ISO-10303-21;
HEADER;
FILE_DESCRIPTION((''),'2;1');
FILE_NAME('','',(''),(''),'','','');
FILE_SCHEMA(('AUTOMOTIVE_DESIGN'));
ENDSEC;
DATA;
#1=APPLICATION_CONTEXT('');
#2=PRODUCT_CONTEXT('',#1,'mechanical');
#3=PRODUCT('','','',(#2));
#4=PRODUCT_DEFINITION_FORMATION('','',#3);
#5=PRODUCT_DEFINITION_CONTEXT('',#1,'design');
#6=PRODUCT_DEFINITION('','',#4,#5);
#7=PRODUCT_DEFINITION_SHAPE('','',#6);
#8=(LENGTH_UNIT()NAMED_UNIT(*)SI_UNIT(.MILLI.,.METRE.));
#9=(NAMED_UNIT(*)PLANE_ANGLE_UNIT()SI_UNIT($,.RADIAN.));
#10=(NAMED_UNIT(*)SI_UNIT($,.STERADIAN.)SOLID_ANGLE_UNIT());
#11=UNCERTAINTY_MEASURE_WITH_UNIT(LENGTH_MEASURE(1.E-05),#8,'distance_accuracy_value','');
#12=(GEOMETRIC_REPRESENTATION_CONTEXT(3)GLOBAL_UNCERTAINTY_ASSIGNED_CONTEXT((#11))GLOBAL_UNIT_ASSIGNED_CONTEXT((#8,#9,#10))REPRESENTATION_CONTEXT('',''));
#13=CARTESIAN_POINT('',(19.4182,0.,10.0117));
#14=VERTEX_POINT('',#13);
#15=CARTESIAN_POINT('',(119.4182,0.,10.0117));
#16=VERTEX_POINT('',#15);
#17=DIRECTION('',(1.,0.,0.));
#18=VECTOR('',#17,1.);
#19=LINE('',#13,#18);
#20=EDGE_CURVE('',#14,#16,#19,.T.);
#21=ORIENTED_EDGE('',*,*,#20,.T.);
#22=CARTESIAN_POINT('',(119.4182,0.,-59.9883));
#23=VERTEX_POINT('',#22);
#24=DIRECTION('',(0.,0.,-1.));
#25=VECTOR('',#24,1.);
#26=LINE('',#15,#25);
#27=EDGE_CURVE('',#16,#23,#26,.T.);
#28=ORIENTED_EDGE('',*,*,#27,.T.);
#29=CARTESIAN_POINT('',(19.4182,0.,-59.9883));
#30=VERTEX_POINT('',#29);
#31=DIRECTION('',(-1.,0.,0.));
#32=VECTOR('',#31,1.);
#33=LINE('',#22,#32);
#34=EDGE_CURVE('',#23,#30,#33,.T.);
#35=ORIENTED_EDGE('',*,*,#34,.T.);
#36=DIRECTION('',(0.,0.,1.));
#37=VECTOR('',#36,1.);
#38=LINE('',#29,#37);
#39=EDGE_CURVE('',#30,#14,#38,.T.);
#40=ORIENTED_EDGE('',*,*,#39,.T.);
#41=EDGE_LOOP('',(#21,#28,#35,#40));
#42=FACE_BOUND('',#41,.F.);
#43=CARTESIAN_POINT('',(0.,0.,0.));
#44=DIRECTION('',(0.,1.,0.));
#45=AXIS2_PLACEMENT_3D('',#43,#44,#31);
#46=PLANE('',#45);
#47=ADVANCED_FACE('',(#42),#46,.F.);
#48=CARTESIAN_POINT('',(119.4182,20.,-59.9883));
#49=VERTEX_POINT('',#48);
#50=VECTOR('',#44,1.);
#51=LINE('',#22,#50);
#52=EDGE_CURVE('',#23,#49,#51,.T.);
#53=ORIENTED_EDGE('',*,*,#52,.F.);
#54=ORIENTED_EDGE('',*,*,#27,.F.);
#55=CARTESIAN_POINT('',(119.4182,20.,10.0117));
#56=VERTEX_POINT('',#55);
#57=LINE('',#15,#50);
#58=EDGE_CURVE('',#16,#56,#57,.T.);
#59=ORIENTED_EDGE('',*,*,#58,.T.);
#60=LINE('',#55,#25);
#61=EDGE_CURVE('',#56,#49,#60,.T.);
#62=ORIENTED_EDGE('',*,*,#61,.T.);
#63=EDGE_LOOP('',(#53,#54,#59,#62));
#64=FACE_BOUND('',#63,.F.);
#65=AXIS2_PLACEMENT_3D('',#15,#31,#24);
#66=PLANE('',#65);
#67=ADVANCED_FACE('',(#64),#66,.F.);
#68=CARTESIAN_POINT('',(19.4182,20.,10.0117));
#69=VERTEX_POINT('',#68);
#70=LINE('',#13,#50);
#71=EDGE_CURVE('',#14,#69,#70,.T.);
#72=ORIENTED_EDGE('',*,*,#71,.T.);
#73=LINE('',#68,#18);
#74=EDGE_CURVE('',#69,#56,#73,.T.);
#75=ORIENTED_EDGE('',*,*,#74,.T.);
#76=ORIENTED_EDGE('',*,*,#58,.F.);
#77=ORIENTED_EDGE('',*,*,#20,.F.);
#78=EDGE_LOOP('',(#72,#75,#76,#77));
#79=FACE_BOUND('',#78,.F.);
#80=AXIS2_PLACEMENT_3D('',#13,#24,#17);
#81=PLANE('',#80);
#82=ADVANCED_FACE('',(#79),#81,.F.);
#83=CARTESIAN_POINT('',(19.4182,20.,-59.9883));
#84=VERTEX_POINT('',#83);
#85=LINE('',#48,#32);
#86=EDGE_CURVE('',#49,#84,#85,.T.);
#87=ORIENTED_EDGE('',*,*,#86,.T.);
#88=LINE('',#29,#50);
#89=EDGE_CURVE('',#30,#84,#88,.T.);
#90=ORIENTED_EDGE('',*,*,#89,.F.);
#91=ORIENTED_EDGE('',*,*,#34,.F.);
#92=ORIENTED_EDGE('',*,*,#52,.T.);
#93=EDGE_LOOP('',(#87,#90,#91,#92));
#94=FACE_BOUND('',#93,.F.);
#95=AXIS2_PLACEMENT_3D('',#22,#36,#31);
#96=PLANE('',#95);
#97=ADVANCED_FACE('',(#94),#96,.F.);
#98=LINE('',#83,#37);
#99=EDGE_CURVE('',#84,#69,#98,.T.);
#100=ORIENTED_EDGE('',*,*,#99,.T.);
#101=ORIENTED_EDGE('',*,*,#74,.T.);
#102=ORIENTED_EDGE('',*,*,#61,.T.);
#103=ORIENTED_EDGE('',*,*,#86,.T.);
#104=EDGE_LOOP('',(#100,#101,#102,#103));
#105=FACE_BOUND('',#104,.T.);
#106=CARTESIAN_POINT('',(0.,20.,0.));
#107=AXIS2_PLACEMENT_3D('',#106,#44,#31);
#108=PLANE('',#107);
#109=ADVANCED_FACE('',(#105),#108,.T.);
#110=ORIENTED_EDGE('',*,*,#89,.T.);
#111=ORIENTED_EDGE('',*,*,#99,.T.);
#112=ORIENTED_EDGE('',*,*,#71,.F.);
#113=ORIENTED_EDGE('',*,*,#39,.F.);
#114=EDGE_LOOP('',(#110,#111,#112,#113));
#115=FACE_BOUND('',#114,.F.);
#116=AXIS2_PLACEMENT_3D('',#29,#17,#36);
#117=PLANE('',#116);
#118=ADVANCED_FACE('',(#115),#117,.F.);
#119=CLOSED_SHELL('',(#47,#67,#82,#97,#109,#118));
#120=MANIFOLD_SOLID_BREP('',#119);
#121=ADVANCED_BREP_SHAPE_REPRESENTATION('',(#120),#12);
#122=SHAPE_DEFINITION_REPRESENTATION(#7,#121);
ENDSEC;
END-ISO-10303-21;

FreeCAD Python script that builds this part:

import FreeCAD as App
import Part
import Sketcher

V = App.Vector
Q = App.Units.Quantity


def add_polygon(sketch, points):
    """Adds a closed chain of lines whose ends are joined by coincident constraints."""
    first, n = sketch.GeometryCount, len(points)
    for a, b in zip(points, points[1:] + points[:1]):
        sketch.addGeometry(Part.LineSegment(App.Vector(*a, 0), App.Vector(*b, 0)), False)
    for i in range(n):
        sketch.addConstraint(Sketcher.Constraint("Coincident", first + i, 2, first + (i + 1) % n, 1))

doc = App.newDocument("Part")
body = doc.addObject("PartDesign::Body", "Body")

sketch1 = doc.addObject("Sketcher::SketchObject", "Sketch")
body.addObject(sketch1)
sketch1.AttachmentSupport = (doc.XZ_Plane, [""])
sketch1.MapMode = "FlatFace"
add_polygon(sketch1, [(19, -60), (19, 10), (119, 10), (119, -60)])
sketch1.addConstraint([
    Sketcher.Constraint("Vertical", 0),
    Sketcher.Constraint("Horizontal", 1),
    Sketcher.Constraint("Vertical", 2),
    Sketcher.Constraint("Horizontal", 3),
    Sketcher.Constraint("DistanceX", 1, 1, 1, 2, Q("3.937 in")),
    Sketcher.Constraint("DistanceY", 0, 1, 0, 2, Q("2.7559 in")),
    Sketcher.Constraint("DistanceX", -1, 1, 0, 2, Q("0.7645 in")),
    Sketcher.Constraint("DistanceY", -1, 1, 0, 2, 10.0117),
])
pad1 = doc.addObject("PartDesign::Pad", "Pad")
body.addObject(pad1)
pad1.Profile = sketch1
pad1.Length = Q("0.7874016 in")
pad1.Reversed = True

doc.recompute()
